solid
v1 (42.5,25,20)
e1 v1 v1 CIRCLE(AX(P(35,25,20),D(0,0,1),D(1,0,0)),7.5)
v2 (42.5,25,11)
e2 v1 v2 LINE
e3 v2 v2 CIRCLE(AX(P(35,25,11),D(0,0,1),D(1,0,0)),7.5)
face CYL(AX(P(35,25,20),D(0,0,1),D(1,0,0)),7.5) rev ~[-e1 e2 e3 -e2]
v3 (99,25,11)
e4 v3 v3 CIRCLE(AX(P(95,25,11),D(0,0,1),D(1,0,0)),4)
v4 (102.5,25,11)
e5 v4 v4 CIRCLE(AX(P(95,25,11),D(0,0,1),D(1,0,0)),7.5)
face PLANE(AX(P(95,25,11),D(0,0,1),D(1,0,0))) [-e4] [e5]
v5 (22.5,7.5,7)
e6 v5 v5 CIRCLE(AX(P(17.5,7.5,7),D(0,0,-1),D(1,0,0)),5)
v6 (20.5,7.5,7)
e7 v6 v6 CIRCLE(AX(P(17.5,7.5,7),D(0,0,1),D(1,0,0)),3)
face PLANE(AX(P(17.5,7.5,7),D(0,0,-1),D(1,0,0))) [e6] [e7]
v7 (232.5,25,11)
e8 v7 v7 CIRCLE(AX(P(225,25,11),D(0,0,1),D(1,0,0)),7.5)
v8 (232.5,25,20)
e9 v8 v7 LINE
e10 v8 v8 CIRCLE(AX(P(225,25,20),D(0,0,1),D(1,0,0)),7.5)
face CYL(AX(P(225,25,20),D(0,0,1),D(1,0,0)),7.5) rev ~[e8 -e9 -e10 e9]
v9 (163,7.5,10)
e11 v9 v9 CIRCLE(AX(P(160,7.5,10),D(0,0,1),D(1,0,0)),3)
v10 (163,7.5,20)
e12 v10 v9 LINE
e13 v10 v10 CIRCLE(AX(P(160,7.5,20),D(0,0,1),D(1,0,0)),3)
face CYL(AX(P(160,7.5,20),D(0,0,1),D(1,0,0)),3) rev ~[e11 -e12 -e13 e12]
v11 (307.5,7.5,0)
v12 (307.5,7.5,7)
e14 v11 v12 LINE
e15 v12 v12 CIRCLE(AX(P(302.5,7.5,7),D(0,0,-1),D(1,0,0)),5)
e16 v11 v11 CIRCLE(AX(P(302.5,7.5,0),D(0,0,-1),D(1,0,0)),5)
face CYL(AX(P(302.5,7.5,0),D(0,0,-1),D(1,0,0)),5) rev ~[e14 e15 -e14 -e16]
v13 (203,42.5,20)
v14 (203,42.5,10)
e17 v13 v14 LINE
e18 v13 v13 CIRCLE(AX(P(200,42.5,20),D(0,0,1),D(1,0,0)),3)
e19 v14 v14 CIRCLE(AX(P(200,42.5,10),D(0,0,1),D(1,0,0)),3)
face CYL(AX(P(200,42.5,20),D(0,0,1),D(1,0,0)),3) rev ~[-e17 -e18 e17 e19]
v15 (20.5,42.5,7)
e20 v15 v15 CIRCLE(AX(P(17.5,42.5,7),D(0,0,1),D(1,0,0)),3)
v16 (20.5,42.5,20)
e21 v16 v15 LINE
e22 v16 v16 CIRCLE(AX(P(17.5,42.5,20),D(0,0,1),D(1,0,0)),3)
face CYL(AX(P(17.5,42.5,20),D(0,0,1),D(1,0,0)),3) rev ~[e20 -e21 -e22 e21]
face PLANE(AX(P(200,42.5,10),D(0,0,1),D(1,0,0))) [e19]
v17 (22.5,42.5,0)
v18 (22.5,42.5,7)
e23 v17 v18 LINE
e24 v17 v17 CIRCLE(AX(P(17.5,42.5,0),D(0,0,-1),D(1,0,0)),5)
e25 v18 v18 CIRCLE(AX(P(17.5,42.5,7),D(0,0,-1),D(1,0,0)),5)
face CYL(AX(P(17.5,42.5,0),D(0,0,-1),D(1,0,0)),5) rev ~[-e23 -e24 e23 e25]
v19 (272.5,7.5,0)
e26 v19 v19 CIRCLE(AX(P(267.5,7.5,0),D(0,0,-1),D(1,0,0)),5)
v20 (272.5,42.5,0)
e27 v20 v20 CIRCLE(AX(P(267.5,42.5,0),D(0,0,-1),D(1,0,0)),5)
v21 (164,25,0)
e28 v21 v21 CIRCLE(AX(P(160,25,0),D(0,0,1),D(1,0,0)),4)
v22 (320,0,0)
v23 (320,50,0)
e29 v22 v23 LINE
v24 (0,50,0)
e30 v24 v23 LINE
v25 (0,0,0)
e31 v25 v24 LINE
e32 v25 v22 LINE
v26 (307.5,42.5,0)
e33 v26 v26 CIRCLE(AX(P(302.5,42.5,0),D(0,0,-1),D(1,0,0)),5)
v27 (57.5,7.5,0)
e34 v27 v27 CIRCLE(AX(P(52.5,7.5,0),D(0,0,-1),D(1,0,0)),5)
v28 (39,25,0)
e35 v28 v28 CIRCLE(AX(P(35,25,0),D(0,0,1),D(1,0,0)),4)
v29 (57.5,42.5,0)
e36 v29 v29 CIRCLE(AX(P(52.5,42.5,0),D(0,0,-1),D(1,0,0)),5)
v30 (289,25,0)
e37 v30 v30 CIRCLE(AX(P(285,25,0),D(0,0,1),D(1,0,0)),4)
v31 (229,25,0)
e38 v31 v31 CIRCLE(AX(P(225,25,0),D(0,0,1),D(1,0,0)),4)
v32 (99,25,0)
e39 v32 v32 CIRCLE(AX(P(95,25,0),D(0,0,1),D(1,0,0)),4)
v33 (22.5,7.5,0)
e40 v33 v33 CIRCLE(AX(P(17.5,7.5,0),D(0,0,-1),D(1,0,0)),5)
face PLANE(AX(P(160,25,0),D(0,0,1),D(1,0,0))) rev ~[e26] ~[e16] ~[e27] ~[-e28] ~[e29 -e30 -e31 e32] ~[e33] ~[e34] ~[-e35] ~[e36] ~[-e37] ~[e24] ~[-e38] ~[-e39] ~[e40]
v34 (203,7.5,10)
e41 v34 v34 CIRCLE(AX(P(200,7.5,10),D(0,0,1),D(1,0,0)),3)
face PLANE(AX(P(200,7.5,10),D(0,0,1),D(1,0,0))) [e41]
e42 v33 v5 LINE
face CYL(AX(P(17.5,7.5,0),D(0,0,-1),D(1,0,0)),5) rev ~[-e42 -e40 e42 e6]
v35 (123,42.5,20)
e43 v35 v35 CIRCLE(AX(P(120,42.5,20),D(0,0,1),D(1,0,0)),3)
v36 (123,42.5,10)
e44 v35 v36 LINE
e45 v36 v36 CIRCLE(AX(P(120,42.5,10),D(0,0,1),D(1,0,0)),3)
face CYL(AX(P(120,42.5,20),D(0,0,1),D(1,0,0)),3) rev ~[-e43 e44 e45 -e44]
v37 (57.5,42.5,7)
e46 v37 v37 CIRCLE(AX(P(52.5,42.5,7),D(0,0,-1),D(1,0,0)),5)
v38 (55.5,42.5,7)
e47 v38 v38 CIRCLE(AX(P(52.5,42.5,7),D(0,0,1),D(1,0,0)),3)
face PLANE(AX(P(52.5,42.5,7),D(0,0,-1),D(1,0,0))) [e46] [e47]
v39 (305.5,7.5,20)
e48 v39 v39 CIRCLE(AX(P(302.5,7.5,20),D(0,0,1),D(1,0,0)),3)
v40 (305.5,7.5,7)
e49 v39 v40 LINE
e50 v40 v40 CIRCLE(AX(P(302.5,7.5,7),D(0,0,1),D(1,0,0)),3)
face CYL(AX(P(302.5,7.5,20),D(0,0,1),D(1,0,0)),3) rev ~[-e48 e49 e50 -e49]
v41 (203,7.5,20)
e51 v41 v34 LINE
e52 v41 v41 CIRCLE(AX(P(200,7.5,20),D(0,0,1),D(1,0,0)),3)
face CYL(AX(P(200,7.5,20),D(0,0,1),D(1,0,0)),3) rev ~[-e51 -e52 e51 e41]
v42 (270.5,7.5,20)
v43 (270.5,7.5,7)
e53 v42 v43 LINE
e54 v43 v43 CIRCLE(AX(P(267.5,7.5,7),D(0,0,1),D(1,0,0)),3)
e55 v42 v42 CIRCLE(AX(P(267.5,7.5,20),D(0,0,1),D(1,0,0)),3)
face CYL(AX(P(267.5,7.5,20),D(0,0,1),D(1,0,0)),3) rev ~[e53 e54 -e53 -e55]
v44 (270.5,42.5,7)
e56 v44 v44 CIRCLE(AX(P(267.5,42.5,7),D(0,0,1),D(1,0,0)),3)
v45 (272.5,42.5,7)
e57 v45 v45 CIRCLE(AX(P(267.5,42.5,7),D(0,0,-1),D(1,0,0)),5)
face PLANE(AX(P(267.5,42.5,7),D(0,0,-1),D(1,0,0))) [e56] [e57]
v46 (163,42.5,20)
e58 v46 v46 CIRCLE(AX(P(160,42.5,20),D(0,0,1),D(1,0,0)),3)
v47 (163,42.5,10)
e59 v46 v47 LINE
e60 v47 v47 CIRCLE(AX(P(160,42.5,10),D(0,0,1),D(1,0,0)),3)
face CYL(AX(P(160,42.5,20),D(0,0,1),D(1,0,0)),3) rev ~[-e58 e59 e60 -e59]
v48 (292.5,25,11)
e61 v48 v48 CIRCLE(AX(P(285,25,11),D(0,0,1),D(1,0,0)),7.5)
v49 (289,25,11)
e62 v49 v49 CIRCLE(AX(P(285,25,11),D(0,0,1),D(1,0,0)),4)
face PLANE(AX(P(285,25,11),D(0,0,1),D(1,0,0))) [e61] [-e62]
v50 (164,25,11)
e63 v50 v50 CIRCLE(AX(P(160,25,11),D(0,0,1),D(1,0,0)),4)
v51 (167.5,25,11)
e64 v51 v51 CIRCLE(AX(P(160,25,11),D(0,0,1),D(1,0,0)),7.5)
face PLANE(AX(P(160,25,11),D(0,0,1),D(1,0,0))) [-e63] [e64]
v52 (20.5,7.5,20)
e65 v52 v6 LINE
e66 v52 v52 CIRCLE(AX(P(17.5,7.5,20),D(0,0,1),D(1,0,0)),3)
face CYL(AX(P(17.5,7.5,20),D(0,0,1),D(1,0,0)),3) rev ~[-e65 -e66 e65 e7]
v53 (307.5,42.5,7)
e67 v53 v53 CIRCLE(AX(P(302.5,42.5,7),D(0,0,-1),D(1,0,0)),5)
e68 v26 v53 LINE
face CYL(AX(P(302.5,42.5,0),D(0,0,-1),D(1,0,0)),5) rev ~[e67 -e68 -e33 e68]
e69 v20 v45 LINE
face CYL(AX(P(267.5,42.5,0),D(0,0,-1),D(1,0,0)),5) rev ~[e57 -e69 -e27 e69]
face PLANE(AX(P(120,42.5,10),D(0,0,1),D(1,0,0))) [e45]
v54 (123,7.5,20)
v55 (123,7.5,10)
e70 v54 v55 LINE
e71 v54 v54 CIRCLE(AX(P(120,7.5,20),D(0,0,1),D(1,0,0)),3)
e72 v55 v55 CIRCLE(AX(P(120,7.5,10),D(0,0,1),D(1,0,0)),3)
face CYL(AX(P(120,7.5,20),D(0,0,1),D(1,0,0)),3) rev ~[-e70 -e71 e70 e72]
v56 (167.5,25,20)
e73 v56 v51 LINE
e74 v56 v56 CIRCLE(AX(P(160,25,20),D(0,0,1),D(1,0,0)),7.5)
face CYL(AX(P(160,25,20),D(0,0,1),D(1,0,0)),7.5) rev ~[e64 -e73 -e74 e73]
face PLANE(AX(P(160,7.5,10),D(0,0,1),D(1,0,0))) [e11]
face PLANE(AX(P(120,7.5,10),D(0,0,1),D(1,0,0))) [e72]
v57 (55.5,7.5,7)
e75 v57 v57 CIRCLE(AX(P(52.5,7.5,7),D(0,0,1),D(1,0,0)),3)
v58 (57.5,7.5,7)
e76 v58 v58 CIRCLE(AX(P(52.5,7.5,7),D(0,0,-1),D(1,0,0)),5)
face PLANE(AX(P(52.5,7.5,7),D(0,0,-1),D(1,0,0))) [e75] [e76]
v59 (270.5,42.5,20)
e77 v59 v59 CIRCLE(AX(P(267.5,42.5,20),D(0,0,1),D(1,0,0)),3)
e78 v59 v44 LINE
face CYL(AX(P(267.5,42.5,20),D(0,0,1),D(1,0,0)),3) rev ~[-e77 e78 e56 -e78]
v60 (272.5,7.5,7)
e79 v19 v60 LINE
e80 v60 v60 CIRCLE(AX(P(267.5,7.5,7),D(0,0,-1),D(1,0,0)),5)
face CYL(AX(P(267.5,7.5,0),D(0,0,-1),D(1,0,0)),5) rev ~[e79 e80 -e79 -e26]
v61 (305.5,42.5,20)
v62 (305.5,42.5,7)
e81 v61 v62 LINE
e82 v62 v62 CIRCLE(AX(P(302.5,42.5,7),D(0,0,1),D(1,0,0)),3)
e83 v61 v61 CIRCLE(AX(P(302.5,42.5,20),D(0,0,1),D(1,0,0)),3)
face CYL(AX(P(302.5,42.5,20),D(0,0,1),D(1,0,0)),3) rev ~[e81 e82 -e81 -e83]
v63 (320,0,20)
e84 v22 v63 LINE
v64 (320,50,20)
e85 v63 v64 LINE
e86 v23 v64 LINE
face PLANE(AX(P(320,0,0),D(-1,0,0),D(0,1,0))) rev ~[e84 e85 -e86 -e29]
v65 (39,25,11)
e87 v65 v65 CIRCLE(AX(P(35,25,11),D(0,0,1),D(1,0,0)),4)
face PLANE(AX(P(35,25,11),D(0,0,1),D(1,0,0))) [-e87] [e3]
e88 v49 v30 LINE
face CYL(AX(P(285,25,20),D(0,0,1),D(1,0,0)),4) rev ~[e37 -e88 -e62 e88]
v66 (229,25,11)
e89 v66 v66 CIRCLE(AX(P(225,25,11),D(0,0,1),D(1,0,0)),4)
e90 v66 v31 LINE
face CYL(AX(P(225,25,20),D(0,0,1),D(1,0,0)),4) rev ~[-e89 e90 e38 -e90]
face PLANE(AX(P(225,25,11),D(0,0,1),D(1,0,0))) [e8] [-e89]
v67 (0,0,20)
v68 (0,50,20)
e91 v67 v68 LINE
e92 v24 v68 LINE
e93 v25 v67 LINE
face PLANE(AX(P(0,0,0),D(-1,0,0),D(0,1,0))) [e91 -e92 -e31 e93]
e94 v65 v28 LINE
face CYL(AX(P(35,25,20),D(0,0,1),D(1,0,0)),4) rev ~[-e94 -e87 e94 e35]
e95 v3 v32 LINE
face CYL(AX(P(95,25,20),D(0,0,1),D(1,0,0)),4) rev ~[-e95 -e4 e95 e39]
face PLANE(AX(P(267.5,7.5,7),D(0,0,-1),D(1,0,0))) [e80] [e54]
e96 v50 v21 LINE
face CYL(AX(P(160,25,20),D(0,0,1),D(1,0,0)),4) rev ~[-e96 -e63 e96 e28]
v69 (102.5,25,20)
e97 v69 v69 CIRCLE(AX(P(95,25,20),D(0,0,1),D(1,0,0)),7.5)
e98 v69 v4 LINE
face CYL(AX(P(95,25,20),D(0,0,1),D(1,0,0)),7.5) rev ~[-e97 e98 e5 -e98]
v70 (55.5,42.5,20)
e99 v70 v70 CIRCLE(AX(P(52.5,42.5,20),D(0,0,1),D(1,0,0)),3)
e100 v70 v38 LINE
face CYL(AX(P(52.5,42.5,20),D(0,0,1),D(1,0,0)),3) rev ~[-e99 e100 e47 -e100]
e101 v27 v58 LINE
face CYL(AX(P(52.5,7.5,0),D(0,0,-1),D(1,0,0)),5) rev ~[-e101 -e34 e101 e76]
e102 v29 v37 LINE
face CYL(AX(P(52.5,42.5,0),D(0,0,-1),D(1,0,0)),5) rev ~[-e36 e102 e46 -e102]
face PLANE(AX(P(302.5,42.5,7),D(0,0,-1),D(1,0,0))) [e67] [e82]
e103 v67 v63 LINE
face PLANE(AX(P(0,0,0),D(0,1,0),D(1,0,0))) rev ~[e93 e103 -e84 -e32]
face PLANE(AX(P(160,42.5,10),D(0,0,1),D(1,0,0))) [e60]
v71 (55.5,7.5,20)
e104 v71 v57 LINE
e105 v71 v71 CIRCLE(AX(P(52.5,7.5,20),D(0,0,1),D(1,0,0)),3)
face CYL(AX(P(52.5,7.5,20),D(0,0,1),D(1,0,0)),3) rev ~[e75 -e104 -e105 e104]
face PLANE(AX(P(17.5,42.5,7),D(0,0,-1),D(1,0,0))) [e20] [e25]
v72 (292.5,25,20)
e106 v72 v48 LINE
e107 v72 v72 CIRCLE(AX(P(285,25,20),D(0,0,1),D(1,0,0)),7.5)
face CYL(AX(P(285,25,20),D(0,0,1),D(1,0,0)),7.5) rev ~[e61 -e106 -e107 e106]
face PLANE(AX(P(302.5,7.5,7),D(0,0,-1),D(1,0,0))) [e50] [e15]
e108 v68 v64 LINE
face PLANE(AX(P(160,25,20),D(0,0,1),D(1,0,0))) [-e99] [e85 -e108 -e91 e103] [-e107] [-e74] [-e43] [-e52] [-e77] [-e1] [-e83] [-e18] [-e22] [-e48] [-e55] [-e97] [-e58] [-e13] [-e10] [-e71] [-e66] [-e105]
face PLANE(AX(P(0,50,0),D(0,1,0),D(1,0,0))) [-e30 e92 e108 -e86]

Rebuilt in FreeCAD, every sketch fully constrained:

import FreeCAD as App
import Part
import Sketcher

V = App.Vector

doc = App.newDocument("Part")
body = doc.addObject("PartDesign::Body", "Body")

sketch1 = body.newObject("Sketcher::SketchObject", "Sketch")
sketch1.AttachmentSupport = (doc.getObject("XY_Plane"), [""])
sketch1.MapMode = "FlatFace"
sketch1.addGeometry(Part.LineSegment(V(0, 50, 0), V(0, 0, 0)), False)
sketch1.addGeometry(Part.LineSegment(V(0, 0, 0), V(320, 0, 0)), False)
sketch1.addGeometry(Part.LineSegment(V(320, 0, 0), V(320, 50, 0)), False)
sketch1.addGeometry(Part.LineSegment(V(320, 50, 0), V(0, 50, 0)), False)
sketch1.addConstraint(Sketcher.Constraint("Coincident", 0, 2, 1, 1))
sketch1.addConstraint(Sketcher.Constraint("Coincident", 1, 2, 2, 1))
sketch1.addConstraint(Sketcher.Constraint("Coincident", 2, 2, 3, 1))
sketch1.addConstraint(Sketcher.Constraint("Coincident", 3, 2, 0, 1))
sketch1.addConstraint(Sketcher.Constraint("Vertical", 0))
sketch1.addConstraint(Sketcher.Constraint("Horizontal", 1))
sketch1.addConstraint(Sketcher.Constraint("Vertical", 2))
sketch1.addConstraint(Sketcher.Constraint("Horizontal", 3))
sketch1.addConstraint(Sketcher.Constraint("Coincident", 0, 2, -1, 1))
sketch1.addConstraint(Sketcher.Constraint("DistanceX", 1, 1, 1, 2, 320.0))
sketch1.addConstraint(Sketcher.Constraint("DistanceY", 0, 2, 0, 1, 50.0))
pad1 = body.newObject("PartDesign::Pad", "Pad")
pad1.Profile = sketch1
pad1.Length = 20

sketch2 = body.newObject("Sketcher::SketchObject", "Sketch001")
sketch2.AttachmentSupport = (doc.getObject("XY_Plane"), [""])
sketch2.MapMode = "FlatFace"
sketch2.AttachmentOffset = App.Placement(V(0, 0, 20), App.Rotation())
sketch2.addGeometry(Part.Circle(V(17.5, 42.5, 0), V(0, 0, 1), 3), False)
sketch2.addGeometry(Part.Circle(V(17.5, 7.5, 0), V(0, 0, 1), 3), False)
sketch2.addGeometry(Part.Circle(V(52.5, 7.5, 0), V(0, 0, 1), 3), False)
sketch2.addGeometry(Part.Circle(V(52.5, 42.5, 0), V(0, 0, 1), 3), False)
sketch2.addGeometry(Part.Circle(V(35, 25, 0), V(0, 0, 1), 4), False)
sketch2.addGeometry(Part.Circle(V(95, 25, 0), V(0, 0, 1), 4), False)
sketch2.addGeometry(Part.Circle(V(160, 25, 0), V(0, 0, 1), 4), False)
sketch2.addGeometry(Part.Circle(V(225, 25, 0), V(0, 0, 1), 4), False)
sketch2.addGeometry(Part.Circle(V(285, 25, 0), V(0, 0, 1), 4), False)
sketch2.addGeometry(Part.Circle(V(267.5, 42.5, 0), V(0, 0, 1), 3), False)
sketch2.addGeometry(Part.Circle(V(302.5, 42.5, 0), V(0, 0, 1), 3), False)
sketch2.addGeometry(Part.Circle(V(302.5, 7.5, 0), V(0, 0, 1), 3), False)
sketch2.addGeometry(Part.Circle(V(267.5, 7.5, 0), V(0, 0, 1), 3), False)
sketch2.addConstraint(Sketcher.Constraint("Equal", 0, 1))
sketch2.addConstraint(Sketcher.Constraint("Equal", 1, 2))
sketch2.addConstraint(Sketcher.Constraint("Equal", 2, 3))
sketch2.addConstraint(Sketcher.Constraint("Equal", 4, 5))
sketch2.addConstraint(Sketcher.Constraint("Equal", 5, 6))
sketch2.addConstraint(Sketcher.Constraint("Equal", 6, 7))
sketch2.addConstraint(Sketcher.Constraint("Equal", 7, 8))
sketch2.addConstraint(Sketcher.Constraint("Equal", 3, 9))
sketch2.addConstraint(Sketcher.Constraint("Equal", 9, 10))
sketch2.addConstraint(Sketcher.Constraint("Equal", 10, 11))
sketch2.addConstraint(Sketcher.Constraint("Equal", 11, 12))
sketch2.addConstraint(Sketcher.Constraint("Horizontal", 1, 3, 2, 3))
sketch2.addConstraint(Sketcher.Constraint("Horizontal", 0, 3, 3, 3))
sketch2.addConstraint(Sketcher.Constraint("Horizontal", 4, 3, 5, 3))
sketch2.addConstraint(Sketcher.Constraint("Horizontal", 5, 3, 6, 3))
sketch2.addConstraint(Sketcher.Constraint("Horizontal", 6, 3, 7, 3))
sketch2.addConstraint(Sketcher.Constraint("Horizontal", 7, 3, 8, 3))
sketch2.addConstraint(Sketcher.Constraint("Horizontal", 3, 3, 9, 3))
sketch2.addConstraint(Sketcher.Constraint("Horizontal", 9, 3, 10, 3))
sketch2.addConstraint(Sketcher.Constraint("Horizontal", 2, 3, 11, 3))
sketch2.addConstraint(Sketcher.Constraint("Horizontal", 11, 3, 12, 3))
sketch2.addConstraint(Sketcher.Constraint("Vertical", 0, 3, 1, 3))
sketch2.addConstraint(Sketcher.Constraint("Vertical", 2, 3, 3, 3))
sketch2.addConstraint(Sketcher.Constraint("Vertical", 10, 3, 11, 3))
sketch2.addConstraint(Sketcher.Constraint("Vertical", 9, 3, 12, 3))
sketch2.addConstraint(Sketcher.Constraint("Diameter", 0, 6.0))
sketch2.addConstraint(Sketcher.Constraint("Diameter", 4, 8.0))
sketch2.addConstraint(Sketcher.Constraint("DistanceX", -1, 1, 4, 3, 35.0))
sketch2.addConstraint(Sketcher.Constraint("DistanceY", -1, 1, 4, 3, 25.0))
sketch2.addConstraint(Sketcher.Constraint("DistanceX", -1, 1, 5, 3, 95.0))
sketch2.addConstraint(Sketcher.Constraint("DistanceX", -1, 1, 6, 3, 160.0))
sketch2.addConstraint(Sketcher.Constraint("DistanceX", -1, 1, 7, 3, 225.0))
sketch2.addConstraint(Sketcher.Constraint("DistanceX", -1, 1, 8, 3, 285.0))
sketch2.addConstraint(Sketcher.Constraint("DistanceY", 1, 3, 0, 3, 35.0))
sketch2.addConstraint(Sketcher.Constraint("DistanceX", 1, 3, 2, 3, 35.0))
sketch2.addConstraint(Sketcher.Constraint("DistanceX", 3, 3, 9, 3, 215.0))
sketch2.addConstraint(Sketcher.Constraint("DistanceX", 9, 3, 10, 3, 35.0))
sketch2.addConstraint(Sketcher.Constraint("DistanceX", -1, 1, 0, 3, 17.5))
sketch2.addConstraint(Sketcher.Constraint("DistanceY", -1, 1, 0, 3, 42.5))
pocket1 = body.newObject("PartDesign::Pocket", "Pocket")
pocket1.Profile = sketch2
pocket1.Length = 20

sketch3 = body.newObject("Sketcher::SketchObject", "Sketch002")
sketch3.AttachmentSupport = (doc.getObject("XY_Plane"), [""])
sketch3.MapMode = "FlatFace"
sketch3.AttachmentOffset = App.Placement(V(0, 0, 20), App.Rotation())
sketch3.addGeometry(Part.Circle(V(35, 25, 0), V(0, 0, 1), 8), False)
sketch3.addGeometry(Part.Circle(V(95, 25, 0), V(0, 0, 1), 8), False)
sketch3.addGeometry(Part.Circle(V(160, 25, 0), V(0, 0, 1), 8), False)
sketch3.addGeometry(Part.Circle(V(225, 25, 0), V(0, 0, 1), 8), False)
sketch3.addGeometry(Part.Circle(V(285, 25, 0), V(0, 0, 1), 8), False)
sketch3.addConstraint(Sketcher.Constraint("Equal", 0, 1))
sketch3.addConstraint(Sketcher.Constraint("Equal", 1, 2))
sketch3.addConstraint(Sketcher.Constraint("Equal", 2, 3))
sketch3.addConstraint(Sketcher.Constraint("Equal", 3, 4))
sketch3.addConstraint(Sketcher.Constraint("Horizontal", 0, 3, 1, 3))
sketch3.addConstraint(Sketcher.Constraint("Horizontal", 1, 3, 2, 3))
sketch3.addConstraint(Sketcher.Constraint("Horizontal", 2, 3, 3, 3))
sketch3.addConstraint(Sketcher.Constraint("Horizontal", 3, 3, 4, 3))
sketch3.addConstraint(Sketcher.Constraint("Diameter", 0, 15.0))
sketch3.addConstraint(Sketcher.Constraint("DistanceX", -1, 1, 0, 3, 35.0))
sketch3.addConstraint(Sketcher.Constraint("DistanceY", -1, 1, 0, 3, 25.0))
sketch3.addConstraint(Sketcher.Constraint("DistanceX", -1, 1, 1, 3, 95.0))
sketch3.addConstraint(Sketcher.Constraint("DistanceX", -1, 1, 2, 3, 160.0))
sketch3.addConstraint(Sketcher.Constraint("DistanceX", -1, 1, 3, 3, 225.0))
sketch3.addConstraint(Sketcher.Constraint("DistanceX", -1, 1, 4, 3, 285.0))
pocket2 = body.newObject("PartDesign::Pocket", "Pocket001")
pocket2.Profile = sketch3
pocket2.Length = 9

sketch4 = body.newObject("Sketcher::SketchObject", "Sketch003")
sketch4.AttachmentSupport = (doc.getObject("XY_Plane"), [""])
sketch4.MapMode = "FlatFace"
sketch4.addGeometry(Part.Circle(V(18, 8, 0), V(0, 0, 1), 5), False)
sketch4.addGeometry(Part.Circle(V(18, 42, 0), V(0, 0, 1), 5), False)
sketch4.addGeometry(Part.Circle(V(52, 42, 0), V(0, 0, 1), 5), False)
sketch4.addGeometry(Part.Circle(V(52, 8, 0), V(0, 0, 1), 5), False)
sketch4.addGeometry(Part.Circle(V(268, 8, 0), V(0, 0, 1), 5), False)
sketch4.addGeometry(Part.Circle(V(302, 8, 0), V(0, 0, 1), 5), False)
sketch4.addGeometry(Part.Circle(V(302, 42, 0), V(0, 0, 1), 5), False)
sketch4.addGeometry(Part.Circle(V(268, 42, 0), V(0, 0, 1), 5), False)
sketch4.addConstraint(Sketcher.Constraint("Equal", 0, 1))
sketch4.addConstraint(Sketcher.Constraint("Equal", 1, 2))
sketch4.addConstraint(Sketcher.Constraint("Equal", 2, 3))
sketch4.addConstraint(Sketcher.Constraint("Equal", 3, 4))
sketch4.addConstraint(Sketcher.Constraint("Equal", 4, 5))
sketch4.addConstraint(Sketcher.Constraint("Equal", 5, 6))
sketch4.addConstraint(Sketcher.Constraint("Equal", 6, 7))
sketch4.addConstraint(Sketcher.Constraint("Horizontal", 1, 3, 2, 3))
sketch4.addConstraint(Sketcher.Constraint("Horizontal", 0, 3, 3, 3))
sketch4.addConstraint(Sketcher.Constraint("Horizontal", 3, 3, 4, 3))
sketch4.addConstraint(Sketcher.Constraint("Horizontal", 4, 3, 5, 3))
sketch4.addConstraint(Sketcher.Constraint("Horizontal", 2, 3, 6, 3))
sketch4.addConstraint(Sketcher.Constraint("Horizontal", 6, 3, 7, 3))
sketch4.addConstraint(Sketcher.Constraint("Vertical", 0, 3, 1, 3))
sketch4.addConstraint(Sketcher.Constraint("Vertical", 2, 3, 3, 3))
sketch4.addConstraint(Sketcher.Constraint("Vertical", 5, 3, 6, 3))
sketch4.addConstraint(Sketcher.Constraint("Vertical", 4, 3, 7, 3))
sketch4.addConstraint(Sketcher.Constraint("Diameter", 0, 10.0))
sketch4.addConstraint(Sketcher.Constraint("DistanceY", 0, 3, 1, 3, 35.0))
sketch4.addConstraint(Sketcher.Constraint("DistanceX", 1, 3, 2, 3, 35.0))
sketch4.addConstraint(Sketcher.Constraint("DistanceX", 3, 3, 4, 3, 215.0))
sketch4.addConstraint(Sketcher.Constraint("DistanceX", 4, 3, 5, 3, 35.0))
sketch4.addConstraint(Sketcher.Constraint("DistanceX", -1, 1, 0, 3, 17.5))
sketch4.addConstraint(Sketcher.Constraint("DistanceY", -1, 1, 0, 3, 7.5))
pocket3 = body.newObject("PartDesign::Pocket", "Pocket002")
pocket3.Profile = sketch4
pocket3.Length = 7
pocket3.Reversed = True

sketch5 = body.newObject("Sketcher::SketchObject", "Sketch004")
sketch5.AttachmentSupport = (doc.getObject("XY_Plane"), [""])
sketch5.MapMode = "FlatFace"
sketch5.AttachmentOffset = App.Placement(V(0, 0, 20), App.Rotation())
sketch5.addGeometry(Part.Circle(V(120, 42.5, 0), V(0, 0, 1), 3), False)
sketch5.addGeometry(Part.Circle(V(120, 7.5, 0), V(0, 0, 1), 3), False)
sketch5.addGeometry(Part.Circle(V(160, 42.5, 0), V(0, 0, 1), 3), False)
sketch5.addGeometry(Part.Circle(V(160, 7.5, 0), V(0, 0, 1), 3), False)
sketch5.addGeometry(Part.Circle(V(200, 42.5, 0), V(0, 0, 1), 3), False)
sketch5.addGeometry(Part.Circle(V(200, 7.5, 0), V(0, 0, 1), 3), False)
sketch5.addConstraint(Sketcher.Constraint("Equal", 0, 1))
sketch5.addConstraint(Sketcher.Constraint("Equal", 1, 2))
sketch5.addConstraint(Sketcher.Constraint("Equal", 2, 3))
sketch5.addConstraint(Sketcher.Constraint("Equal", 3, 4))
sketch5.addConstraint(Sketcher.Constraint("Equal", 4, 5))
sketch5.addConstraint(Sketcher.Constraint("Horizontal", 0, 3, 2, 3))
sketch5.addConstraint(Sketcher.Constraint("Horizontal", 1, 3, 3, 3))
sketch5.addConstraint(Sketcher.Constraint("Horizontal", 2, 3, 4, 3))
sketch5.addConstraint(Sketcher.Constraint("Horizontal", 3, 3, 5, 3))
sketch5.addConstraint(Sketcher.Constraint("Vertical", 0, 3, 1, 3))
sketch5.addConstraint(Sketcher.Constraint("Vertical", 2, 3, 3, 3))
sketch5.addConstraint(Sketcher.Constraint("Vertical", 4, 3, 5, 3))
sketch5.addConstraint(Sketcher.Constraint("Diameter", 0, 6.0))
sketch5.addConstraint(Sketcher.Constraint("DistanceX", -1, 1, 0, 3, 120.0))
sketch5.addConstraint(Sketcher.Constraint("DistanceX", -1, 1, 2, 3, 160.0))
sketch5.addConstraint(Sketcher.Constraint("DistanceX", -1, 1, 4, 3, 200.0))
sketch5.addConstraint(Sketcher.Constraint("DistanceY", 1, 3, 0, 3, 35.0))
sketch5.addConstraint(Sketcher.Constraint("DistanceY", -1, 1, 0, 3, 42.5))
pocket4 = body.newObject("PartDesign::Pocket", "Pocket003")
pocket4.Profile = sketch5
pocket4.Length = 10

doc.recompute()
